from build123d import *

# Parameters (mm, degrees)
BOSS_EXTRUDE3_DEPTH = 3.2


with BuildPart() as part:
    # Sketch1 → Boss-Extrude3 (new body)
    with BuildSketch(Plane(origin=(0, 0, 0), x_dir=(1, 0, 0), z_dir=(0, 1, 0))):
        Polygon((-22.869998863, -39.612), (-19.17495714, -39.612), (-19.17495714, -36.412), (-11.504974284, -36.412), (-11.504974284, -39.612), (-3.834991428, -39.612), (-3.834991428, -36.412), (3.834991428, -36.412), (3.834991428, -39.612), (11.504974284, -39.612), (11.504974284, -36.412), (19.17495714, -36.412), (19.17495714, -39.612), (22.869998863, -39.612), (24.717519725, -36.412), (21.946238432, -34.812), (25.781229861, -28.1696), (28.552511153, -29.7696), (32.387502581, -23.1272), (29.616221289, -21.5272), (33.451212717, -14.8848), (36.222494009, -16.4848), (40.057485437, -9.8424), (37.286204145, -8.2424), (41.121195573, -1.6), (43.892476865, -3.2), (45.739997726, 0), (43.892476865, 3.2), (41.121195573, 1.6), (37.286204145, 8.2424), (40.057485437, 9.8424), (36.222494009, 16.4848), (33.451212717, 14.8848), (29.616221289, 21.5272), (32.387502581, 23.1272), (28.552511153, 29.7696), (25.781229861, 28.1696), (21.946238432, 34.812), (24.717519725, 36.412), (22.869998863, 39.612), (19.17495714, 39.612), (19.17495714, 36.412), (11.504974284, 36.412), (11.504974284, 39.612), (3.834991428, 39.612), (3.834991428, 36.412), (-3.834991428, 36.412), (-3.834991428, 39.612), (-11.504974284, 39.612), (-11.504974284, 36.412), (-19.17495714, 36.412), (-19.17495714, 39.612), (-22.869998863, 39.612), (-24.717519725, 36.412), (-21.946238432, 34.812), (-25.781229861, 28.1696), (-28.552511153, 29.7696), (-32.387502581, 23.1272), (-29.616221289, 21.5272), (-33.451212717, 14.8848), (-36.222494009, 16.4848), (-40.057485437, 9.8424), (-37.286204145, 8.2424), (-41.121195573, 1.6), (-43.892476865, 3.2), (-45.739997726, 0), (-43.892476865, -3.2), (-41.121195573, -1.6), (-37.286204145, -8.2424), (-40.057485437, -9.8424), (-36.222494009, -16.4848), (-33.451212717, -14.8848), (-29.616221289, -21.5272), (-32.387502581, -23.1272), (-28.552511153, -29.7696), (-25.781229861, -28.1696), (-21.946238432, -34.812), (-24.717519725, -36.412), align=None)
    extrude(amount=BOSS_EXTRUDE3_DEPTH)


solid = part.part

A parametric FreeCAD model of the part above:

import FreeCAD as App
import Part
import Sketcher
from FreeCAD import Vector
Q = App.Units.Quantity

doc = App.newDocument("Part")
params = doc.addObject("Spreadsheet::Sheet", "Params")
for row, (alias, value) in enumerate([
    ("sketch1_height", "3.2 mm"),
    ("sketch1_length", "3.2 mm"),
    ("pad1_length", "3.2 mm"),
], start=1):
    params.set(f"A{row}", alias)
    params.set(f"B{row}", "=" + value)
    params.setAlias(f"B{row}", alias)

body = doc.addObject("PartDesign::Body", "Body")

sketch1 = doc.addObject("Sketcher::SketchObject", "Sketch")
body.addObject(sketch1)
sketch1.AttachmentSupport = (doc.XZ_Plane, [""])
sketch1.MapMode = "FlatFace"
sketch1.addGeometry(Part.LineSegment(Vector(-22.9, 39.6, 0), Vector(-19.2, 39.6, 0)), False)
sketch1.addGeometry(Part.LineSegment(Vector(-19.2, 39.6, 0), Vector(-19.2, 36.4, 0)), False)
sketch1.addGeometry(Part.LineSegment(Vector(-19.2, 36.4, 0), Vector(-11.5, 36.4, 0)), False)
sketch1.addGeometry(Part.LineSegment(Vector(-11.5, 36.4, 0), Vector(-11.5, 39.6, 0)), False)
sketch1.addGeometry(Part.LineSegment(Vector(-11.5, 39.6, 0), Vector(-3.8, 39.6, 0)), False)
sketch1.addGeometry(Part.LineSegment(Vector(-3.8, 39.6, 0), Vector(-3.8, 36.4, 0)), False)
sketch1.addGeometry(Part.LineSegment(Vector(-3.8, 36.4, 0), Vector(3.8, 36.4, 0)), False)
sketch1.addGeometry(Part.LineSegment(Vector(3.8, 36.4, 0), Vector(3.8, 39.6, 0)), False)
sketch1.addGeometry(Part.LineSegment(Vector(3.8, 39.6, 0), Vector(11.5, 39.6, 0)), False)
sketch1.addGeometry(Part.LineSegment(Vector(11.5, 39.6, 0), Vector(11.5, 36.4, 0)), False)
sketch1.addGeometry(Part.LineSegment(Vector(11.5, 36.4, 0), Vector(19.2, 36.4, 0)), False)
sketch1.addGeometry(Part.LineSegment(Vector(19.2, 36.4, 0), Vector(19.2, 39.6, 0)), False)
sketch1.addGeometry(Part.LineSegment(Vector(19.2, 39.6, 0), Vector(22.9, 39.6, 0)), False)
sketch1.addGeometry(Part.LineSegment(Vector(22.9, 39.6, 0), Vector(24.7, 36.4, 0)), False)
sketch1.addGeometry(Part.LineSegment(Vector(24.7, 36.4, 0), Vector(21.9, 34.8, 0)), False)
sketch1.addGeometry(Part.LineSegment(Vector(21.9, 34.8, 0), Vector(25.8, 28.2, 0)), False)
sketch1.addGeometry(Part.LineSegment(Vector(25.8, 28.2, 0), Vector(28.6, 29.8, 0)), False)
sketch1.addGeometry(Part.LineSegment(Vector(28.6, 29.8, 0), Vector(32.4, 23.1, 0)), False)
sketch1.addGeometry(Part.LineSegment(Vector(32.4, 23.1, 0), Vector(29.6, 21.5, 0)), False)
sketch1.addGeometry(Part.LineSegment(Vector(29.6, 21.5, 0), Vector(33.5, 14.9, 0)), False)
sketch1.addGeometry(Part.LineSegment(Vector(33.5, 14.9, 0), Vector(36.2, 16.5, 0)), False)
sketch1.addGeometry(Part.LineSegment(Vector(36.2, 16.5, 0), Vector(40.1, 9.8, 0)), False)
sketch1.addGeometry(Part.LineSegment(Vector(40.1, 9.8, 0), Vector(37.3, 8.2, 0)), False)
sketch1.addGeometry(Part.LineSegment(Vector(37.3, 8.2, 0), Vector(41.1, 1.6, 0)), False)
sketch1.addGeometry(Part.LineSegment(Vector(41.1, 1.6, 0), Vector(43.9, 3.2, 0)), False)
sketch1.addGeometry(Part.LineSegment(Vector(43.9, 3.2, 0), Vector(45.7, 0, 0)), False)
sketch1.addGeometry(Part.LineSegment(Vector(45.7, 0, 0), Vector(43.9, -3.2, 0)), False)
sketch1.addGeometry(Part.LineSegment(Vector(43.9, -3.2, 0), Vector(41.1, -1.6, 0)), False)
sketch1.addGeometry(Part.LineSegment(Vector(41.1, -1.6, 0), Vector(37.3, -8.2, 0)), False)
sketch1.addGeometry(Part.LineSegment(Vector(37.3, -8.2, 0), Vector(40.1, -9.8, 0)), False)
sketch1.addGeometry(Part.LineSegment(Vector(40.1, -9.8, 0), Vector(36.2, -16.5, 0)), False)
sketch1.addGeometry(Part.LineSegment(Vector(36.2, -16.5, 0), Vector(33.5, -14.9, 0)), False)
sketch1.addGeometry(Part.LineSegment(Vector(33.5, -14.9, 0), Vector(29.6, -21.5, 0)), False)
sketch1.addGeometry(Part.LineSegment(Vector(29.6, -21.5, 0), Vector(32.4, -23.1, 0)), False)
sketch1.addGeometry(Part.LineSegment(Vector(32.4, -23.1, 0), Vector(28.6, -29.8, 0)), False)
sketch1.addGeometry(Part.LineSegment(Vector(28.6, -29.8, 0), Vector(25.8, -28.2, 0)), False)
sketch1.addGeometry(Part.LineSegment(Vector(25.8, -28.2, 0), Vector(21.9, -34.8, 0)), False)
sketch1.addGeometry(Part.LineSegment(Vector(21.9, -34.8, 0), Vector(24.7, -36.4, 0)), False)
sketch1.addGeometry(Part.LineSegment(Vector(24.7, -36.4, 0), Vector(22.9, -39.6, 0)), False)
sketch1.addGeometry(Part.LineSegment(Vector(22.9, -39.6, 0), Vector(19.2, -39.6, 0)), False)
sketch1.addGeometry(Part.LineSegment(Vector(19.2, -39.6, 0), Vector(19.2, -36.4, 0)), False)
sketch1.addGeometry(Part.LineSegment(Vector(19.2, -36.4, 0), Vector(11.5, -36.4, 0)), False)
sketch1.addGeometry(Part.LineSegment(Vector(11.5, -36.4, 0), Vector(11.5, -39.6, 0)), False)
sketch1.addGeometry(Part.LineSegment(Vector(11.5, -39.6, 0), Vector(3.8, -39.6, 0)), False)
sketch1.addGeometry(Part.LineSegment(Vector(3.8, -39.6, 0), Vector(3.8, -36.4, 0)), False)
sketch1.addGeometry(Part.LineSegment(Vector(3.8, -36.4, 0), Vector(-3.8, -36.4, 0)), False)
sketch1.addGeometry(Part.LineSegment(Vector(-3.8, -36.4, 0), Vector(-3.8, -39.6, 0)), False)
sketch1.addGeometry(Part.LineSegment(Vector(-3.8, -39.6, 0), Vector(-11.5, -39.6, 0)), False)
sketch1.addGeometry(Part.LineSegment(Vector(-11.5, -39.6, 0), Vector(-11.5, -36.4, 0)), False)
sketch1.addGeometry(Part.LineSegment(Vector(-11.5, -36.4, 0), Vector(-19.2, -36.4, 0)), False)
sketch1.addGeometry(Part.LineSegment(Vector(-19.2, -36.4, 0), Vector(-19.2, -39.6, 0)), False)
sketch1.addGeometry(Part.LineSegment(Vector(-19.2, -39.6, 0), Vector(-22.9, -39.6, 0)), False)
sketch1.addGeometry(Part.LineSegment(Vector(-22.9, -39.6, 0), Vector(-24.7, -36.4, 0)), False)
sketch1.addGeometry(Part.LineSegment(Vector(-24.7, -36.4, 0), Vector(-21.9, -34.8, 0)), False)
sketch1.addGeometry(Part.LineSegment(Vector(-21.9, -34.8, 0), Vector(-25.8, -28.2, 0)), False)
sketch1.addGeometry(Part.LineSegment(Vector(-25.8, -28.2, 0), Vector(-28.6, -29.8, 0)), False)
sketch1.addGeometry(Part.LineSegment(Vector(-28.6, -29.8, 0), Vector(-32.4, -23.1, 0)), False)
sketch1.addGeometry(Part.LineSegment(Vector(-32.4, -23.1, 0), Vector(-29.6, -21.5, 0)), False)
sketch1.addGeometry(Part.LineSegment(Vector(-29.6, -21.5, 0), Vector(-33.5, -14.9, 0)), False)
sketch1.addGeometry(Part.LineSegment(Vector(-33.5, -14.9, 0), Vector(-36.2, -16.5, 0)), False)
sketch1.addGeometry(Part.LineSegment(Vector(-36.2, -16.5, 0), Vector(-40.1, -9.8, 0)), False)
sketch1.addGeometry(Part.LineSegment(Vector(-40.1, -9.8, 0), Vector(-37.3, -8.2, 0)), False)
sketch1.addGeometry(Part.LineSegment(Vector(-37.3, -8.2, 0), Vector(-41.1, -1.6, 0)), False)
sketch1.addGeometry(Part.LineSegment(Vector(-41.1, -1.6, 0), Vector(-43.9, -3.2, 0)), False)
sketch1.addGeometry(Part.LineSegment(Vector(-43.9, -3.2, 0), Vector(-45.7, 0, 0)), False)
sketch1.addGeometry(Part.LineSegment(Vector(-45.7, 0, 0), Vector(-43.9, 3.2, 0)), False)
sketch1.addGeometry(Part.LineSegment(Vector(-43.9, 3.2, 0), Vector(-41.1, 1.6, 0)), False)
sketch1.addGeometry(Part.LineSegment(Vector(-41.1, 1.6, 0), Vector(-37.3, 8.2, 0)), False)
sketch1.addGeometry(Part.LineSegment(Vector(-37.3, 8.2, 0), Vector(-40.1, 9.8, 0)), False)
sketch1.addGeometry(Part.LineSegment(Vector(-40.1, 9.8, 0), Vector(-36.2, 16.5, 0)), False)
sketch1.addGeometry(Part.LineSegment(Vector(-36.2, 16.5, 0), Vector(-33.5, 14.9, 0)), False)
sketch1.addGeometry(Part.LineSegment(Vector(-33.5, 14.9, 0), Vector(-29.6, 21.5, 0)), False)
sketch1.addGeometry(Part.LineSegment(Vector(-29.6, 21.5, 0), Vector(-32.4, 23.1, 0)), False)
sketch1.addGeometry(Part.LineSegment(Vector(-32.4, 23.1, 0), Vector(-28.6, 29.8, 0)), False)
sketch1.addGeometry(Part.LineSegment(Vector(-28.6, 29.8, 0), Vector(-25.8, 28.2, 0)), False)
sketch1.addGeometry(Part.LineSegment(Vector(-25.8, 28.2, 0), Vector(-21.9, 34.8, 0)), False)
sketch1.addGeometry(Part.LineSegment(Vector(-21.9, 34.8, 0), Vector(-24.7, 36.4, 0)), False)
sketch1.addGeometry(Part.LineSegment(Vector(-24.7, 36.4, 0), Vector(-22.9, 39.6, 0)), False)
sketch1.addConstraint(Sketcher.Constraint("Coincident", 0, 2, 1, 1))
sketch1.addConstraint(Sketcher.Constraint("Coincident", 1, 2, 2, 1))
sketch1.addConstraint(Sketcher.Constraint("Coincident", 2, 2, 3, 1))
sketch1.addConstraint(Sketcher.Constraint("Coincident", 3, 2, 4, 1))
sketch1.addConstraint(Sketcher.Constraint("Coincident", 4, 2, 5, 1))
sketch1.addConstraint(Sketcher.Constraint("Coincident", 5, 2, 6, 1))
sketch1.addConstraint(Sketcher.Constraint("Coincident", 6, 2, 7, 1))
sketch1.addConstraint(Sketcher.Constraint("Coincident", 7, 2, 8, 1))
sketch1.addConstraint(Sketcher.Constraint("Coincident", 8, 2, 9, 1))
sketch1.addConstraint(Sketcher.Constraint("Coincident", 9, 2, 10, 1))
sketch1.addConstraint(Sketcher.Constraint("Coincident", 10, 2, 11, 1))
sketch1.addConstraint(Sketcher.Constraint("Coincident", 11, 2, 12, 1))
sketch1.addConstraint(Sketcher.Constraint("Coincident", 12, 2, 13, 1))
sketch1.addConstraint(Sketcher.Constraint("Coincident", 13, 2, 14, 1))
sketch1.addConstraint(Sketcher.Constraint("Coincident", 14, 2, 15, 1))
sketch1.addConstraint(Sketcher.Constraint("Coincident", 15, 2, 16, 1))
sketch1.addConstraint(Sketcher.Constraint("Coincident", 16, 2, 17, 1))
sketch1.addConstraint(Sketcher.Constraint("Coincident", 17, 2, 18, 1))
sketch1.addConstraint(Sketcher.Constraint("Coincident", 18, 2, 19, 1))
sketch1.addConstraint(Sketcher.Constraint("Coincident", 19, 2, 20, 1))
sketch1.addConstraint(Sketcher.Constraint("Coincident", 20, 2, 21, 1))
sketch1.addConstraint(Sketcher.Constraint("Coincident", 21, 2, 22, 1))
sketch1.addConstraint(Sketcher.Constraint("Coincident", 22, 2, 23, 1))
sketch1.addConstraint(Sketcher.Constraint("Coincident", 23, 2, 24, 1))
sketch1.addConstraint(Sketcher.Constraint("Coincident", 24, 2, 25, 1))
sketch1.addConstraint(Sketcher.Constraint("Coincident", 25, 2, 26, 1))
sketch1.addConstraint(Sketcher.Constraint("Coincident", 26, 2, 27, 1))
sketch1.addConstraint(Sketcher.Constraint("Coincident", 27, 2, 28, 1))
sketch1.addConstraint(Sketcher.Constraint("Coincident", 28, 2, 29, 1))
sketch1.addConstraint(Sketcher.Constraint("Coincident", 29, 2, 30, 1))
sketch1.addConstraint(Sketcher.Constraint("Coincident", 30, 2, 31, 1))
sketch1.addConstraint(Sketcher.Constraint("Coincident", 31, 2, 32, 1))
sketch1.addConstraint(Sketcher.Constraint("Coincident", 32, 2, 33, 1))
sketch1.addConstraint(Sketcher.Constraint("Coincident", 33, 2, 34, 1))
sketch1.addConstraint(Sketcher.Constraint("Coincident", 34, 2, 35, 1))
sketch1.addConstraint(Sketcher.Constraint("Coincident", 35, 2, 36, 1))
sketch1.addConstraint(Sketcher.Constraint("Coincident", 36, 2, 37, 1))
sketch1.addConstraint(Sketcher.Constraint("Coincident", 37, 2, 38, 1))
sketch1.addConstraint(Sketcher.Constraint("Coincident", 38, 2, 39, 1))
sketch1.addConstraint(Sketcher.Constraint("Coincident", 39, 2, 40, 1))
sketch1.addConstraint(Sketcher.Constraint("Coincident", 40, 2, 41, 1))
sketch1.addConstraint(Sketcher.Constraint("Coincident", 41, 2, 42, 1))
sketch1.addConstraint(Sketcher.Constraint("Coincident", 42, 2, 43, 1))
sketch1.addConstraint(Sketcher.Constraint("Coincident", 43, 2, 44, 1))
sketch1.addConstraint(Sketcher.Constraint("Coincident", 44, 2, 45, 1))
sketch1.addConstraint(Sketcher.Constraint("Coincident", 45, 2, 46, 1))
sketch1.addConstraint(Sketcher.Constraint("Coincident", 46, 2, 47, 1))
sketch1.addConstraint(Sketcher.Constraint("Coincident", 47, 2, 48, 1))
sketch1.addConstraint(Sketcher.Constraint("Coincident", 48, 2, 49, 1))
sketch1.addConstraint(Sketcher.Constraint("Coincident", 49, 2, 50, 1))
sketch1.addConstraint(Sketcher.Constraint("Coincident", 50, 2, 51, 1))
sketch1.addConstraint(Sketcher.Constraint("Coincident", 51, 2, 52, 1))
sketch1.addConstraint(Sketcher.Constraint("Coincident", 52, 2, 53, 1))
sketch1.addConstraint(Sketcher.Constraint("Coincident", 53, 2, 54, 1))
sketch1.addConstraint(Sketcher.Constraint("Coincident", 54, 2, 55, 1))
sketch1.addConstraint(Sketcher.Constraint("Coincident", 55, 2, 56, 1))
sketch1.addConstraint(Sketcher.Constraint("Coincident", 56, 2, 57, 1))
sketch1.addConstraint(Sketcher.Constraint("Coincident", 57, 2, 58, 1))
sketch1.addConstraint(Sketcher.Constraint("Coincident", 58, 2, 59, 1))
sketch1.addConstraint(Sketcher.Constraint("Coincident", 59, 2, 60, 1))
sketch1.addConstraint(Sketcher.Constraint("Coincident", 60, 2, 61, 1))
sketch1.addConstraint(Sketcher.Constraint("Coincident", 61, 2, 62, 1))
sketch1.addConstraint(Sketcher.Constraint("Coincident", 62, 2, 63, 1))
sketch1.addConstraint(Sketcher.Constraint("Coincident", 63, 2, 64, 1))
sketch1.addConstraint(Sketcher.Constraint("Coincident", 64, 2, 65, 1))
sketch1.addConstraint(Sketcher.Constraint("Coincident", 65, 2, 66, 1))
sketch1.addConstraint(Sketcher.Constraint("Coincident", 66, 2, 67, 1))
sketch1.addConstraint(Sketcher.Constraint("Coincident", 67, 2, 68, 1))
sketch1.addConstraint(Sketcher.Constraint("Coincident", 68, 2, 69, 1))
sketch1.addConstraint(Sketcher.Constraint("Coincident", 69, 2, 70, 1))
sketch1.addConstraint(Sketcher.Constraint("Coincident", 70, 2, 71, 1))
sketch1.addConstraint(Sketcher.Constraint("Coincident", 71, 2, 72, 1))
sketch1.addConstraint(Sketcher.Constraint("Coincident", 72, 2, 73, 1))
sketch1.addConstraint(Sketcher.Constraint("Coincident", 73, 2, 74, 1))
sketch1.addConstraint(Sketcher.Constraint("Coincident", 74, 2, 75, 1))
sketch1.addConstraint(Sketcher.Constraint("Coincident", 75, 2, 76, 1))
sketch1.addConstraint(Sketcher.Constraint("Coincident", 76, 2, 77, 1))
sketch1.addConstraint(Sketcher.Constraint("Coincident", 77, 2, 0, 1))
sketch1.addConstraint(Sketcher.Constraint("Horizontal", 0))
sketch1.addConstraint(Sketcher.Constraint("Vertical", 1))
sketch1.addConstraint(Sketcher.Constraint("Horizontal", 2))
sketch1.addConstraint(Sketcher.Constraint("Vertical", 3))
sketch1.addConstraint(Sketcher.Constraint("Horizontal", 4))
sketch1.addConstraint(Sketcher.Constraint("Vertical", 5))
sketch1.addConstraint(Sketcher.Constraint("Horizontal", 6))
sketch1.addConstraint(Sketcher.Constraint("Vertical", 7))
sketch1.addConstraint(Sketcher.Constraint("Horizontal", 8))
sketch1.addConstraint(Sketcher.Constraint("Vertical", 9))
sketch1.addConstraint(Sketcher.Constraint("Horizontal", 10))
sketch1.addConstraint(Sketcher.Constraint("Vertical", 11))
sketch1.addConstraint(Sketcher.Constraint("Horizontal", 12))
sketch1.addConstraint(Sketcher.Constraint("Horizontal", 39))
sketch1.addConstraint(Sketcher.Constraint("Vertical", 40))
sketch1.addConstraint(Sketcher.Constraint("Horizontal", 41))
sketch1.addConstraint(Sketcher.Constraint("Vertical", 42))
sketch1.addConstraint(Sketcher.Constraint("Horizontal", 43))
sketch1.addConstraint(Sketcher.Constraint("Vertical", 44))
sketch1.addConstraint(Sketcher.Constraint("Horizontal", 45))
sketch1.addConstraint(Sketcher.Constraint("Vertical", 46))
sketch1.addConstraint(Sketcher.Constraint("Horizontal", 47))
sketch1.addConstraint(Sketcher.Constraint("Vertical", 48))
sketch1.addConstraint(Sketcher.Constraint("Horizontal", 49))
sketch1.addConstraint(Sketcher.Constraint("Vertical", 50))
sketch1.addConstraint(Sketcher.Constraint("Horizontal", 51))
sketch1.addConstraint(Sketcher.Constraint("Symmetric", 0, 2, 39, 2, -1, 1))
sketch1.addConstraint(Sketcher.Constraint("Symmetric", 2, 2, 41, 2, -1, 1))
sketch1.addConstraint(Sketcher.Constraint("Symmetric", 4, 2, 43, 2, -1, 1))
sketch1.addConstraint(Sketcher.Constraint("Symmetric", 6, 2, 45, 2, -1, 1))
sketch1.addConstraint(Sketcher.Constraint("Symmetric", 8, 2, 47, 2, -1, 1))
sketch1.addConstraint(Sketcher.Constraint("Symmetric", 10, 2, 49, 2, -1, 1))
sketch1.addConstraint(Sketcher.Constraint("Symmetric", 12, 2, 51, 2, -1, 1))
sketch1.addConstraint(Sketcher.Constraint("Symmetric", 13, 2, 52, 2, -1, 1))
sketch1.addConstraint(Sketcher.Constraint("Symmetric", 14, 2, 53, 2, -1, 1))
sketch1.addConstraint(Sketcher.Constraint("Symmetric", 15, 2, 54, 2, -1, 1))
sketch1.addConstraint(Sketcher.Constraint("Symmetric", 16, 2, 55, 2, -1, 1))
sketch1.addConstraint(Sketcher.Constraint("Symmetric", 17, 2, 56, 2, -1, 1))
sketch1.addConstraint(Sketcher.Constraint("Symmetric", 18, 2, 57, 2, -1, 1))
sketch1.addConstraint(Sketcher.Constraint("Symmetric", 19, 2, 58, 2, -1, 1))
sketch1.addConstraint(Sketcher.Constraint("Symmetric", 20, 2, 59, 2, -1, 1))
sketch1.addConstraint(Sketcher.Constraint("Symmetric", 21, 2, 60, 2, -1, 1))
sketch1.addConstraint(Sketcher.Constraint("Symmetric", 22, 2, 61, 2, -1, 1))
sketch1.addConstraint(Sketcher.Constraint("Symmetric", 23, 2, 62, 2, -1, 1))
sketch1.addConstraint(Sketcher.Constraint("Symmetric", 24, 2, 63, 2, -1, 1))
sketch1.addConstraint(Sketcher.Constraint("Symmetric", 25, 2, 64, 2, -1, 1))
sketch1.addConstraint(Sketcher.Constraint("Symmetric", 26, 2, 65, 2, -1, 1))
sketch1.addConstraint(Sketcher.Constraint("Symmetric", 27, 2, 66, 2, -1, 1))
sketch1.addConstraint(Sketcher.Constraint("Symmetric", 28, 2, 67, 2, -1, 1))
sketch1.addConstraint(Sketcher.Constraint("Symmetric", 29, 2, 68, 2, -1, 1))
sketch1.addConstraint(Sketcher.Constraint("Symmetric", 30, 2, 69, 2, -1, 1))
sketch1.addConstraint(Sketcher.Constraint("Symmetric", 31, 2, 70, 2, -1, 1))
sketch1.addConstraint(Sketcher.Constraint("Symmetric", 32, 2, 71, 2, -1, 1))
sketch1.addConstraint(Sketcher.Constraint("Symmetric", 33, 2, 72, 2, -1, 1))
sketch1.addConstraint(Sketcher.Constraint("Symmetric", 34, 2, 73, 2, -1, 1))
sketch1.addConstraint(Sketcher.Constraint("Symmetric", 35, 2, 74, 2, -1, 1))
sketch1.addConstraint(Sketcher.Constraint("Symmetric", 36, 2, 75, 2, -1, 1))
sketch1.addConstraint(Sketcher.Constraint("Symmetric", 37, 2, 76, 2, -1, 1))
sketch1.addConstraint(Sketcher.Constraint("Symmetric", 4, 2, 7, 2, -2))
sketch1.addConstraint(Sketcher.Constraint("Symmetric", 2, 2, 9, 2, -2))
sketch1.addConstraint(Sketcher.Constraint("Symmetric", 0, 2, 11, 2, -2))
sketch1.addConstraint(Sketcher.Constraint("Symmetric", 37, 2, 52, 2, -2))
sketch1.addConstraint(Sketcher.Constraint("Symmetric", 36, 2, 53, 2, -2))
sketch1.addConstraint(Sketcher.Constraint("Symmetric", 35, 2, 54, 2, -2))
sketch1.addConstraint(Sketcher.Constraint("Symmetric", 34, 2, 55, 2, -2))
sketch1.addConstraint(Sketcher.Constraint("Symmetric", 33, 2, 56, 2, -2))
sketch1.addConstraint(Sketcher.Constraint("Symmetric", 32, 2, 57, 2, -2))
sketch1.addConstraint(Sketcher.Constraint("Symmetric", 31, 2, 58, 2, -2))
sketch1.addConstraint(Sketcher.Constraint("Symmetric", 30, 2, 59, 2, -2))
sketch1.addConstraint(Sketcher.Constraint("Symmetric", 29, 2, 60, 2, -2))
sketch1.addConstraint(Sketcher.Constraint("Symmetric", 28, 2, 61, 2, -2))
sketch1.addConstraint(Sketcher.Constraint("Symmetric", 27, 2, 62, 2, -2))
sketch1.addConstraint(Sketcher.Constraint("Symmetric", 26, 2, 63, 2, -2))
sketch1.addConstraint(Sketcher.Constraint("PointOnObject", 25, 2, -1))
sketch1.addConstraint(Sketcher.Constraint("Perpendicular", 13, 14))
sketch1.addConstraint(Sketcher.Constraint("Perpendicular", 14, 15))
sketch1.addConstraint(Sketcher.Constraint("Perpendicular", 15, 16))
sketch1.addConstraint(Sketcher.Constraint("Perpendicular", 16, 17))
sketch1.addConstraint(Sketcher.Constraint("Perpendicular", 17, 18))
sketch1.addConstraint(Sketcher.Constraint("Perpendicular", 18, 19))
sketch1.addConstraint(Sketcher.Constraint("Perpendicular", 19, 20))
sketch1.addConstraint(Sketcher.Constraint("Perpendicular", 20, 21))
sketch1.addConstraint(Sketcher.Constraint("Perpendicular", 21, 22))
sketch1.addConstraint(Sketcher.Constraint("Perpendicular", 22, 23))
sketch1.addConstraint(Sketcher.Constraint("Perpendicular", 23, 24))
sketch1.addConstraint(Sketcher.Constraint("Perpendicular", 24, 25))
sketch1.addConstraint(Sketcher.Constraint("Perpendicular", 37, 38))
sketch1.addConstraint(Sketcher.Constraint("Perpendicular", 76, 77))
sketch1.addConstraint(Sketcher.Constraint("Horizontal", 0, 2, 3, 2))
sketch1.addConstraint(Sketcher.Constraint("Horizontal", 2, 2, 5, 2))
sketch1.addConstraint(Sketcher.Constraint("Horizontal", 10, 2, 13, 2))
sketch1.addConstraint(Sketcher.Constraint("Equal", 2, 4))
sketch1.addConstraint(Sketcher.Constraint("Equal", 4, 6))
sketch1.addConstraint(Sketcher.Constraint("Equal", 14, 16))
sketch1.addConstraint(Sketcher.Constraint("Equal", 15, 17))
sketch1.addConstraint(Sketcher.Constraint("Equal", 16, 18))
sketch1.addConstraint(Sketcher.Constraint("Equal", 17, 19))
sketch1.addConstraint(Sketcher.Constraint("Equal", 18, 20))
sketch1.addConstraint(Sketcher.Constraint("Equal", 19, 21))
sketch1.addConstraint(Sketcher.Constraint("Equal", 20, 22))
sketch1.addConstraint(Sketcher.Constraint("Equal", 21, 23))
sketch1.addConstraint(Sketcher.Constraint("Equal", 22, 24))
sketch1.addConstraint(Sketcher.Constraint("Equal", 13, 25))
sketch1.addConstraint(Sketcher.Constraint("Angle", 13, Q("-60 deg")))
sketch1.addConstraint(Sketcher.Constraint("DistanceY", 1, 2, 1, 1, 3.2))
sketch1.addConstraint(Sketcher.Constraint("Distance", 14, 3.2))
sketch1.addConstraint(Sketcher.Constraint("DistanceX", -1, 1, 12, 2, 22.869999))
sketch1.addConstraint(Sketcher.Constraint("DistanceY", -1, 1, 0, 2, 39.612))
sketch1.addConstraint(Sketcher.Constraint("DistanceX", 0, 1, 0, 2, 3.695042))
sketch1.setExpression("Constraints[182]", "Params.sketch1_height")
sketch1.setExpression("Constraints[183]", "Params.sketch1_length")
pad1 = doc.addObject("PartDesign::Pad", "Pad")
body.addObject(pad1)
pad1.Profile = sketch1
pad1.setExpression("Length", "Params.pad1_length")
pad1.Reversed = True

doc.recompute()
